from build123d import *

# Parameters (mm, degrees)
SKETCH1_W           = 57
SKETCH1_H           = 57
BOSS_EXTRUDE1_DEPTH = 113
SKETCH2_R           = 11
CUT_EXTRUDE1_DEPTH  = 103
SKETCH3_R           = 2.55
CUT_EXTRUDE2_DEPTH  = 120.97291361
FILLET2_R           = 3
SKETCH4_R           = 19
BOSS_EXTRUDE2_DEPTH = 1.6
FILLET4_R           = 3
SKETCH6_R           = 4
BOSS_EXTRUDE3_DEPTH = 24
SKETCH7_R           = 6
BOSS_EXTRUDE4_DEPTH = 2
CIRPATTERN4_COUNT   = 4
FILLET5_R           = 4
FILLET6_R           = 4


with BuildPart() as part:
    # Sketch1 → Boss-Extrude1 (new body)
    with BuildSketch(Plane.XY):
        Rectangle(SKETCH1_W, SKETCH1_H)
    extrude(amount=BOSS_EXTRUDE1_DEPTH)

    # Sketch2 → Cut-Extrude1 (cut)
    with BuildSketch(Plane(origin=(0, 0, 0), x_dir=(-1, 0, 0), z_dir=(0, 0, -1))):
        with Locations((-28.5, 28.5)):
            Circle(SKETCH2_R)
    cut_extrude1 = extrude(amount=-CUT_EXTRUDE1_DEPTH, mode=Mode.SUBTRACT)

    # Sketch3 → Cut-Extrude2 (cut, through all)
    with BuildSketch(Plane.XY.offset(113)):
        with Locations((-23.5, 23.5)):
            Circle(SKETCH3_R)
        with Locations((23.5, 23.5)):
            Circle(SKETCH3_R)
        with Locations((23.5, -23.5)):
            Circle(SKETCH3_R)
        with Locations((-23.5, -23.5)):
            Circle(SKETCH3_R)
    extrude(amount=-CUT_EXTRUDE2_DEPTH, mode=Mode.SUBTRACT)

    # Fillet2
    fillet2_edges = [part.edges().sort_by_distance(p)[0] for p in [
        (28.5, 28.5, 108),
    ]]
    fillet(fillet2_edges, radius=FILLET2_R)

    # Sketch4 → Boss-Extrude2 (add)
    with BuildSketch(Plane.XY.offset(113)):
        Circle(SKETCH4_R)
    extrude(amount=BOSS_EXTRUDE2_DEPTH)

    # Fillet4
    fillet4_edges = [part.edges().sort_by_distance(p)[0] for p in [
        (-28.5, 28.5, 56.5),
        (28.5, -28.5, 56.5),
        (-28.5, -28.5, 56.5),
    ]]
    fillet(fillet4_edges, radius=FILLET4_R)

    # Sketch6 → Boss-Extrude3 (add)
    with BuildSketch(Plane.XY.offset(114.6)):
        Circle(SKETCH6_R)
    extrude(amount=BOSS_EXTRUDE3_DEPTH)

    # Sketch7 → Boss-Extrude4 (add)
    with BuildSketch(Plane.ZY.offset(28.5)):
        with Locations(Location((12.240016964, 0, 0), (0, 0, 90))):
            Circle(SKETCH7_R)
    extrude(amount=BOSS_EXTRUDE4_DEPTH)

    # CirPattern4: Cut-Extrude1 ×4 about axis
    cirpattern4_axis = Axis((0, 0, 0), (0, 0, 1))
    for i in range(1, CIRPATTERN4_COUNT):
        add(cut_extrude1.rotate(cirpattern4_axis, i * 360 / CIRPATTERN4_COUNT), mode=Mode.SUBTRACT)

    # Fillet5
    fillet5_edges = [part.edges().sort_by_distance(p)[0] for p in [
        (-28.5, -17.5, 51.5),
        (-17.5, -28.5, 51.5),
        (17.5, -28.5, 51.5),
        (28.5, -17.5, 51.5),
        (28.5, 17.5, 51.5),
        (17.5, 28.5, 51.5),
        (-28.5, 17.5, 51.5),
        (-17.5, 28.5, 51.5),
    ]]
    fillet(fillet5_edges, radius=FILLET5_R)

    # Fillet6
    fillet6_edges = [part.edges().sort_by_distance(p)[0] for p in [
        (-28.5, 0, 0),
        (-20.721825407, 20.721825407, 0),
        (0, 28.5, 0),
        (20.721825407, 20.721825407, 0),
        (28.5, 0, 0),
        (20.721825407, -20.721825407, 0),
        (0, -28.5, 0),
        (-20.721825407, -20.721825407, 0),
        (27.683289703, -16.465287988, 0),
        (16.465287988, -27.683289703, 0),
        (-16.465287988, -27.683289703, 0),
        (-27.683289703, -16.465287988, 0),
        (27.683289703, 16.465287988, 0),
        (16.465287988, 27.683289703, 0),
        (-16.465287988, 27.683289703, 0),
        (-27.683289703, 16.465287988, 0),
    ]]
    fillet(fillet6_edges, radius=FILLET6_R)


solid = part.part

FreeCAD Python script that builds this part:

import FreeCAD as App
import Part
import Sketcher
from FreeCAD import Vector


def edges_at(feature, points):
    """Names of the edges that pass closest to the given points."""
    edges = feature.Shape.Edges
    near = lambda p: min(range(len(edges)), key=lambda i: edges[i].distToShape(Part.Vertex(*p))[0])
    return sorted({f"Edge{near(p) + 1}" for p in points})


def add_polygon(sketch, points):
    """Adds a closed chain of lines whose ends are joined by coincident constraints."""
    first, n = sketch.GeometryCount, len(points)
    for a, b in zip(points, points[1:] + points[:1]):
        sketch.addGeometry(Part.LineSegment(App.Vector(*a, 0), App.Vector(*b, 0)), False)
    for i in range(n):
        sketch.addConstraint(Sketcher.Constraint("Coincident", first + i, 2, first + (i + 1) % n, 1))

doc = App.newDocument("Part")
body = doc.addObject("PartDesign::Body", "Body")

sketch1 = doc.addObject("Sketcher::SketchObject", "Sketch")
body.addObject(sketch1)
sketch1.AttachmentSupport = (doc.XY_Plane, [""])
sketch1.MapMode = "FlatFace"
add_polygon(sketch1, [(-28.5, 28.5), (-28.5, -28.5), (28.5, -28.5), (28.5, 28.5)])
sketch1.addConstraint(Sketcher.Constraint("Vertical", 0))
sketch1.addConstraint(Sketcher.Constraint("Horizontal", 1))
sketch1.addConstraint(Sketcher.Constraint("Vertical", 2))
sketch1.addConstraint(Sketcher.Constraint("Horizontal", 3))
sketch1.addConstraint(Sketcher.Constraint("Symmetric", 0, 2, 2, 2, -1, 1))
sketch1.addConstraint(Sketcher.Constraint("Equal", 3, 0))
sketch1.addConstraint(Sketcher.Constraint("DistanceX", 1, 1, 1, 2, 57.0))
pad1 = doc.addObject("PartDesign::Pad", "Pad")
body.addObject(pad1)
pad1.Profile = sketch1
pad1.Length = 113

sketch2 = doc.addObject("Sketcher::SketchObject", "Sketch001")
body.addObject(sketch2)
sketch2.AttachmentSupport = (doc.XY_Plane, [""])
sketch2.MapMode = "FlatFace"
sketch2.addGeometry(Part.Circle(Vector(28.5, 28.5, 0), Vector(0, 0, 1), 11), False)
sketch2.addConstraint(Sketcher.Constraint("Diameter", 0, 22.0))
sketch2.addConstraint(Sketcher.Constraint("DistanceX", -1, 1, 0, 3, 28.5))
sketch2.addConstraint(Sketcher.Constraint("DistanceY", -1, 1, 0, 3, 28.5))
pocket1 = doc.addObject("PartDesign::Pocket", "Pocket")
body.addObject(pocket1)
pocket1.Profile = sketch2
pocket1.Length = 103
pocket1.Reversed = True

sketch3 = doc.addObject("Sketcher::SketchObject", "Sketch002")
body.addObject(sketch3)
sketch3.AttachmentSupport = (doc.XY_Plane, [""])
sketch3.MapMode = "FlatFace"
sketch3.AttachmentOffset = App.Placement(Vector(0, 0, 113), App.Rotation())
sketch3.addGeometry(Part.Circle(Vector(-23.5, 23.5, 0), Vector(0, 0, 1), 2.55), False)
sketch3.addGeometry(Part.Circle(Vector(23.5, 23.5, 0), Vector(0, 0, 1), 2.55), False)
sketch3.addGeometry(Part.Circle(Vector(23.5, -23.5, 0), Vector(0, 0, 1), 2.55), False)
sketch3.addGeometry(Part.Circle(Vector(-23.5, -23.5, 0), Vector(0, 0, 1), 2.55), False)
sketch3.addConstraint(Sketcher.Constraint("Equal", 0, 1))
sketch3.addConstraint(Sketcher.Constraint("Equal", 1, 2))
sketch3.addConstraint(Sketcher.Constraint("Equal", 2, 3))
sketch3.addConstraint(Sketcher.Constraint("Symmetric", 0, 3, 2, 3, -1, 1))
sketch3.addConstraint(Sketcher.Constraint("Symmetric", 1, 3, 3, 3, -1, 1))
sketch3.addConstraint(Sketcher.Constraint("Symmetric", 0, 3, 1, 3, -2))
sketch3.addConstraint(Sketcher.Constraint("Diameter", 0, 5.1))
sketch3.addConstraint(Sketcher.Constraint("DistanceX", 0, 3, 1, 3, 47.0))
sketch3.addConstraint(Sketcher.Constraint("DistanceY", 2, 3, 1, 3, 47.0))
pocket2 = doc.addObject("PartDesign::Pocket", "Pocket001")
body.addObject(pocket2)
pocket2.Profile = sketch3
pocket2.Type = "ThroughAll"
doc.recompute()

fillet = doc.addObject("PartDesign::Fillet", "Fillet")
body.addObject(fillet)
fillet.Base = (pocket2, edges_at(pocket2, [(28.5, 28.5, 108)]))
fillet.Radius = 3

sketch4 = doc.addObject("Sketcher::SketchObject", "Sketch003")
body.addObject(sketch4)
sketch4.AttachmentSupport = (doc.XY_Plane, [""])
sketch4.MapMode = "FlatFace"
sketch4.AttachmentOffset = App.Placement(Vector(0, 0, 113), App.Rotation())
sketch4.addGeometry(Part.Circle(Vector(0, 0, 0), Vector(0, 0, 1), 19), False)
sketch4.addConstraint(Sketcher.Constraint("Coincident", 0, 3, -1, 1))
sketch4.addConstraint(Sketcher.Constraint("Diameter", 0, 38.0))
pad2 = doc.addObject("PartDesign::Pad", "Pad001")
body.addObject(pad2)
pad2.Profile = sketch4
pad2.Length = 1.6
doc.recompute()

fillet2 = doc.addObject("PartDesign::Fillet", "Fillet001")
body.addObject(fillet2)
fillet2.Base = (pad2, edges_at(pad2, [(-28.5, 28.5, 56.5), (28.5, -28.5, 56.5), (-28.5, -28.5, 56.5)]))
fillet2.Radius = 3

sketch5 = doc.addObject("Sketcher::SketchObject", "Sketch004")
body.addObject(sketch5)
sketch5.AttachmentSupport = (doc.XY_Plane, [""])
sketch5.MapMode = "FlatFace"
sketch5.AttachmentOffset = App.Placement(Vector(0, 0, 114.6), App.Rotation())
sketch5.addGeometry(Part.Circle(Vector(0, 0, 0), Vector(0, 0, 1), 4), False)
sketch5.addConstraint(Sketcher.Constraint("Coincident", 0, 3, -1, 1))
sketch5.addConstraint(Sketcher.Constraint("Diameter", 0, 8.0))
pad3 = doc.addObject("PartDesign::Pad", "Pad002")
body.addObject(pad3)
pad3.Profile = sketch5
pad3.Length = 24

sketch6 = doc.addObject("Sketcher::SketchObject", "Sketch005")
body.addObject(sketch6)
sketch6.AttachmentSupport = (doc.YZ_Plane, [""])
sketch6.MapMode = "FlatFace"
sketch6.AttachmentOffset = App.Placement(Vector(0, 0, -28.5), App.Rotation())
sketch6.addGeometry(Part.Circle(Vector(0, 12.240017, 0), Vector(0, 0, 1), 6), False)
sketch6.addConstraint(Sketcher.Constraint("PointOnObject", 0, 3, -2))
sketch6.addConstraint(Sketcher.Constraint("Diameter", 0, 12.0))
sketch6.addConstraint(Sketcher.Constraint("DistanceY", -1, 1, 0, 3, 12.240017))
pad4 = doc.addObject("PartDesign::Pad", "Pad003")
body.addObject(pad4)
pad4.Profile = sketch6
pad4.Length = 2
pad4.Reversed = True
doc.recompute()

polarpattern = doc.addObject("PartDesign::PolarPattern", "PolarPattern")
body.addObject(polarpattern)
polarpattern.Originals = [pocket1]
polarpattern.Axis = (doc.Z_Axis, [""])
polarpattern.Angle = 360
polarpattern.Occurrences = 4
body.Tip = polarpattern
doc.recompute()

fillet3 = doc.addObject("PartDesign::Fillet", "Fillet002")
body.addObject(fillet3)
fillet3.Base = (polarpattern, edges_at(polarpattern, [
    (-28.5, -17.5, 51.5),
    (-17.5, -28.5, 51.5),
    (17.5, -28.5, 51.5),
    (28.5, -17.5, 51.5),
    (28.5, 17.5, 51.5),
    (17.5, 28.5, 51.5),
    (-28.5, 17.5, 51.5),
    (-17.5, 28.5, 51.5),
]))
fillet3.Radius = 4
doc.recompute()

fillet4 = doc.addObject("PartDesign::Fillet", "Fillet003")
body.addObject(fillet4)
fillet4.Base = (fillet3, edges_at(fillet3, [
    (-28.5, 0, 0),
    (-20.722, 20.722, 0),
    (0, 28.5, 0),
    (20.722, 20.722, 0),
    (28.5, 0, 0),
    (20.722, -20.722, 0),
    (0, -28.5, 0),
    (-20.722, -20.722, 0),
    (27.683, -16.465, 0),
    (16.465, -27.683, 0),
    (-16.465, -27.683, 0),
    (-27.683, -16.465, 0),
    (27.683, 16.465, 0),
    (16.465, 27.683, 0),
    (-16.465, 27.683, 0),
    (-27.683, 16.465, 0),
]))
fillet4.Radius = 4

doc.recompute()
